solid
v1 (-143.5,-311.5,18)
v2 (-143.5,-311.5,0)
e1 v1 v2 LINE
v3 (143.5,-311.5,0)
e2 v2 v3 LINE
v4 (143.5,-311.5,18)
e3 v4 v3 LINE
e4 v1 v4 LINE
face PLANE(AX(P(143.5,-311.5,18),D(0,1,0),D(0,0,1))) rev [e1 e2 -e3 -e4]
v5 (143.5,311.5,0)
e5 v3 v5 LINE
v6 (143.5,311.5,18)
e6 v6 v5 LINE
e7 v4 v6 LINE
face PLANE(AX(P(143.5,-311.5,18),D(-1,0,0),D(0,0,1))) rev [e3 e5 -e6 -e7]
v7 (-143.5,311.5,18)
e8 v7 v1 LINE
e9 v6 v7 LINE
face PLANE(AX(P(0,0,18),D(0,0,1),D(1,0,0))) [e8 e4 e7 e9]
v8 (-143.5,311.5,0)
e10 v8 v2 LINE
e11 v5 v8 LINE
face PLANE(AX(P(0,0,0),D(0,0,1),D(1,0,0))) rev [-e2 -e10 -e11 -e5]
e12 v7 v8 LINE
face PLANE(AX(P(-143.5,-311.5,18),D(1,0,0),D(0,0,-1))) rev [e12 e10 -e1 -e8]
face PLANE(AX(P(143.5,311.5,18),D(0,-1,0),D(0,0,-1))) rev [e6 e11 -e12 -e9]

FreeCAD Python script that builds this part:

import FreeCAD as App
import Part
import Sketcher

V = App.Vector
Q = App.Units.Quantity


def add_polygon(sketch, points):
    """Adds a closed chain of lines whose ends are joined by coincident constraints."""
    first, n = sketch.GeometryCount, len(points)
    for a, b in zip(points, points[1:] + points[:1]):
        sketch.addGeometry(Part.LineSegment(App.Vector(*a, 0), App.Vector(*b, 0)), False)
    for i in range(n):
        sketch.addConstraint(Sketcher.Constraint("Coincident", first + i, 2, first + (i + 1) % n, 1))

doc = App.newDocument("Part")
body = doc.addObject("PartDesign::Body", "Body")

# Sketch on XY plane
sketch1 = body.newObject("Sketcher::SketchObject", "Sketch")
sketch1.AttachmentSupport = (doc.getObject("XY_Plane"), [""])
sketch1.MapMode = "FlatFace"
add_polygon(sketch1, [(-144, 312), (-144, -312), (144, -312), (144, 312)])  # lines 0-3
sketch1.addConstraint(Sketcher.Constraint("Vertical", 0))
sketch1.addConstraint(Sketcher.Constraint("Horizontal", 1))
sketch1.addConstraint(Sketcher.Constraint("Vertical", 2))
sketch1.addConstraint(Sketcher.Constraint("Horizontal", 3))
sketch1.addConstraint(Sketcher.Constraint("Symmetric", 0, 2, 2, 2, -1, 1))
sketch1.addConstraint(Sketcher.Constraint("DistanceX", 1, 1, 1, 2, Q("287 mm")))
sketch1.addConstraint(Sketcher.Constraint("DistanceY", 0, 2, 0, 1, Q("623 mm")))
pad1 = body.newObject("PartDesign::Pad", "Pad")
pad1.Profile = sketch1
pad1.Length = 18

doc.recompute()
